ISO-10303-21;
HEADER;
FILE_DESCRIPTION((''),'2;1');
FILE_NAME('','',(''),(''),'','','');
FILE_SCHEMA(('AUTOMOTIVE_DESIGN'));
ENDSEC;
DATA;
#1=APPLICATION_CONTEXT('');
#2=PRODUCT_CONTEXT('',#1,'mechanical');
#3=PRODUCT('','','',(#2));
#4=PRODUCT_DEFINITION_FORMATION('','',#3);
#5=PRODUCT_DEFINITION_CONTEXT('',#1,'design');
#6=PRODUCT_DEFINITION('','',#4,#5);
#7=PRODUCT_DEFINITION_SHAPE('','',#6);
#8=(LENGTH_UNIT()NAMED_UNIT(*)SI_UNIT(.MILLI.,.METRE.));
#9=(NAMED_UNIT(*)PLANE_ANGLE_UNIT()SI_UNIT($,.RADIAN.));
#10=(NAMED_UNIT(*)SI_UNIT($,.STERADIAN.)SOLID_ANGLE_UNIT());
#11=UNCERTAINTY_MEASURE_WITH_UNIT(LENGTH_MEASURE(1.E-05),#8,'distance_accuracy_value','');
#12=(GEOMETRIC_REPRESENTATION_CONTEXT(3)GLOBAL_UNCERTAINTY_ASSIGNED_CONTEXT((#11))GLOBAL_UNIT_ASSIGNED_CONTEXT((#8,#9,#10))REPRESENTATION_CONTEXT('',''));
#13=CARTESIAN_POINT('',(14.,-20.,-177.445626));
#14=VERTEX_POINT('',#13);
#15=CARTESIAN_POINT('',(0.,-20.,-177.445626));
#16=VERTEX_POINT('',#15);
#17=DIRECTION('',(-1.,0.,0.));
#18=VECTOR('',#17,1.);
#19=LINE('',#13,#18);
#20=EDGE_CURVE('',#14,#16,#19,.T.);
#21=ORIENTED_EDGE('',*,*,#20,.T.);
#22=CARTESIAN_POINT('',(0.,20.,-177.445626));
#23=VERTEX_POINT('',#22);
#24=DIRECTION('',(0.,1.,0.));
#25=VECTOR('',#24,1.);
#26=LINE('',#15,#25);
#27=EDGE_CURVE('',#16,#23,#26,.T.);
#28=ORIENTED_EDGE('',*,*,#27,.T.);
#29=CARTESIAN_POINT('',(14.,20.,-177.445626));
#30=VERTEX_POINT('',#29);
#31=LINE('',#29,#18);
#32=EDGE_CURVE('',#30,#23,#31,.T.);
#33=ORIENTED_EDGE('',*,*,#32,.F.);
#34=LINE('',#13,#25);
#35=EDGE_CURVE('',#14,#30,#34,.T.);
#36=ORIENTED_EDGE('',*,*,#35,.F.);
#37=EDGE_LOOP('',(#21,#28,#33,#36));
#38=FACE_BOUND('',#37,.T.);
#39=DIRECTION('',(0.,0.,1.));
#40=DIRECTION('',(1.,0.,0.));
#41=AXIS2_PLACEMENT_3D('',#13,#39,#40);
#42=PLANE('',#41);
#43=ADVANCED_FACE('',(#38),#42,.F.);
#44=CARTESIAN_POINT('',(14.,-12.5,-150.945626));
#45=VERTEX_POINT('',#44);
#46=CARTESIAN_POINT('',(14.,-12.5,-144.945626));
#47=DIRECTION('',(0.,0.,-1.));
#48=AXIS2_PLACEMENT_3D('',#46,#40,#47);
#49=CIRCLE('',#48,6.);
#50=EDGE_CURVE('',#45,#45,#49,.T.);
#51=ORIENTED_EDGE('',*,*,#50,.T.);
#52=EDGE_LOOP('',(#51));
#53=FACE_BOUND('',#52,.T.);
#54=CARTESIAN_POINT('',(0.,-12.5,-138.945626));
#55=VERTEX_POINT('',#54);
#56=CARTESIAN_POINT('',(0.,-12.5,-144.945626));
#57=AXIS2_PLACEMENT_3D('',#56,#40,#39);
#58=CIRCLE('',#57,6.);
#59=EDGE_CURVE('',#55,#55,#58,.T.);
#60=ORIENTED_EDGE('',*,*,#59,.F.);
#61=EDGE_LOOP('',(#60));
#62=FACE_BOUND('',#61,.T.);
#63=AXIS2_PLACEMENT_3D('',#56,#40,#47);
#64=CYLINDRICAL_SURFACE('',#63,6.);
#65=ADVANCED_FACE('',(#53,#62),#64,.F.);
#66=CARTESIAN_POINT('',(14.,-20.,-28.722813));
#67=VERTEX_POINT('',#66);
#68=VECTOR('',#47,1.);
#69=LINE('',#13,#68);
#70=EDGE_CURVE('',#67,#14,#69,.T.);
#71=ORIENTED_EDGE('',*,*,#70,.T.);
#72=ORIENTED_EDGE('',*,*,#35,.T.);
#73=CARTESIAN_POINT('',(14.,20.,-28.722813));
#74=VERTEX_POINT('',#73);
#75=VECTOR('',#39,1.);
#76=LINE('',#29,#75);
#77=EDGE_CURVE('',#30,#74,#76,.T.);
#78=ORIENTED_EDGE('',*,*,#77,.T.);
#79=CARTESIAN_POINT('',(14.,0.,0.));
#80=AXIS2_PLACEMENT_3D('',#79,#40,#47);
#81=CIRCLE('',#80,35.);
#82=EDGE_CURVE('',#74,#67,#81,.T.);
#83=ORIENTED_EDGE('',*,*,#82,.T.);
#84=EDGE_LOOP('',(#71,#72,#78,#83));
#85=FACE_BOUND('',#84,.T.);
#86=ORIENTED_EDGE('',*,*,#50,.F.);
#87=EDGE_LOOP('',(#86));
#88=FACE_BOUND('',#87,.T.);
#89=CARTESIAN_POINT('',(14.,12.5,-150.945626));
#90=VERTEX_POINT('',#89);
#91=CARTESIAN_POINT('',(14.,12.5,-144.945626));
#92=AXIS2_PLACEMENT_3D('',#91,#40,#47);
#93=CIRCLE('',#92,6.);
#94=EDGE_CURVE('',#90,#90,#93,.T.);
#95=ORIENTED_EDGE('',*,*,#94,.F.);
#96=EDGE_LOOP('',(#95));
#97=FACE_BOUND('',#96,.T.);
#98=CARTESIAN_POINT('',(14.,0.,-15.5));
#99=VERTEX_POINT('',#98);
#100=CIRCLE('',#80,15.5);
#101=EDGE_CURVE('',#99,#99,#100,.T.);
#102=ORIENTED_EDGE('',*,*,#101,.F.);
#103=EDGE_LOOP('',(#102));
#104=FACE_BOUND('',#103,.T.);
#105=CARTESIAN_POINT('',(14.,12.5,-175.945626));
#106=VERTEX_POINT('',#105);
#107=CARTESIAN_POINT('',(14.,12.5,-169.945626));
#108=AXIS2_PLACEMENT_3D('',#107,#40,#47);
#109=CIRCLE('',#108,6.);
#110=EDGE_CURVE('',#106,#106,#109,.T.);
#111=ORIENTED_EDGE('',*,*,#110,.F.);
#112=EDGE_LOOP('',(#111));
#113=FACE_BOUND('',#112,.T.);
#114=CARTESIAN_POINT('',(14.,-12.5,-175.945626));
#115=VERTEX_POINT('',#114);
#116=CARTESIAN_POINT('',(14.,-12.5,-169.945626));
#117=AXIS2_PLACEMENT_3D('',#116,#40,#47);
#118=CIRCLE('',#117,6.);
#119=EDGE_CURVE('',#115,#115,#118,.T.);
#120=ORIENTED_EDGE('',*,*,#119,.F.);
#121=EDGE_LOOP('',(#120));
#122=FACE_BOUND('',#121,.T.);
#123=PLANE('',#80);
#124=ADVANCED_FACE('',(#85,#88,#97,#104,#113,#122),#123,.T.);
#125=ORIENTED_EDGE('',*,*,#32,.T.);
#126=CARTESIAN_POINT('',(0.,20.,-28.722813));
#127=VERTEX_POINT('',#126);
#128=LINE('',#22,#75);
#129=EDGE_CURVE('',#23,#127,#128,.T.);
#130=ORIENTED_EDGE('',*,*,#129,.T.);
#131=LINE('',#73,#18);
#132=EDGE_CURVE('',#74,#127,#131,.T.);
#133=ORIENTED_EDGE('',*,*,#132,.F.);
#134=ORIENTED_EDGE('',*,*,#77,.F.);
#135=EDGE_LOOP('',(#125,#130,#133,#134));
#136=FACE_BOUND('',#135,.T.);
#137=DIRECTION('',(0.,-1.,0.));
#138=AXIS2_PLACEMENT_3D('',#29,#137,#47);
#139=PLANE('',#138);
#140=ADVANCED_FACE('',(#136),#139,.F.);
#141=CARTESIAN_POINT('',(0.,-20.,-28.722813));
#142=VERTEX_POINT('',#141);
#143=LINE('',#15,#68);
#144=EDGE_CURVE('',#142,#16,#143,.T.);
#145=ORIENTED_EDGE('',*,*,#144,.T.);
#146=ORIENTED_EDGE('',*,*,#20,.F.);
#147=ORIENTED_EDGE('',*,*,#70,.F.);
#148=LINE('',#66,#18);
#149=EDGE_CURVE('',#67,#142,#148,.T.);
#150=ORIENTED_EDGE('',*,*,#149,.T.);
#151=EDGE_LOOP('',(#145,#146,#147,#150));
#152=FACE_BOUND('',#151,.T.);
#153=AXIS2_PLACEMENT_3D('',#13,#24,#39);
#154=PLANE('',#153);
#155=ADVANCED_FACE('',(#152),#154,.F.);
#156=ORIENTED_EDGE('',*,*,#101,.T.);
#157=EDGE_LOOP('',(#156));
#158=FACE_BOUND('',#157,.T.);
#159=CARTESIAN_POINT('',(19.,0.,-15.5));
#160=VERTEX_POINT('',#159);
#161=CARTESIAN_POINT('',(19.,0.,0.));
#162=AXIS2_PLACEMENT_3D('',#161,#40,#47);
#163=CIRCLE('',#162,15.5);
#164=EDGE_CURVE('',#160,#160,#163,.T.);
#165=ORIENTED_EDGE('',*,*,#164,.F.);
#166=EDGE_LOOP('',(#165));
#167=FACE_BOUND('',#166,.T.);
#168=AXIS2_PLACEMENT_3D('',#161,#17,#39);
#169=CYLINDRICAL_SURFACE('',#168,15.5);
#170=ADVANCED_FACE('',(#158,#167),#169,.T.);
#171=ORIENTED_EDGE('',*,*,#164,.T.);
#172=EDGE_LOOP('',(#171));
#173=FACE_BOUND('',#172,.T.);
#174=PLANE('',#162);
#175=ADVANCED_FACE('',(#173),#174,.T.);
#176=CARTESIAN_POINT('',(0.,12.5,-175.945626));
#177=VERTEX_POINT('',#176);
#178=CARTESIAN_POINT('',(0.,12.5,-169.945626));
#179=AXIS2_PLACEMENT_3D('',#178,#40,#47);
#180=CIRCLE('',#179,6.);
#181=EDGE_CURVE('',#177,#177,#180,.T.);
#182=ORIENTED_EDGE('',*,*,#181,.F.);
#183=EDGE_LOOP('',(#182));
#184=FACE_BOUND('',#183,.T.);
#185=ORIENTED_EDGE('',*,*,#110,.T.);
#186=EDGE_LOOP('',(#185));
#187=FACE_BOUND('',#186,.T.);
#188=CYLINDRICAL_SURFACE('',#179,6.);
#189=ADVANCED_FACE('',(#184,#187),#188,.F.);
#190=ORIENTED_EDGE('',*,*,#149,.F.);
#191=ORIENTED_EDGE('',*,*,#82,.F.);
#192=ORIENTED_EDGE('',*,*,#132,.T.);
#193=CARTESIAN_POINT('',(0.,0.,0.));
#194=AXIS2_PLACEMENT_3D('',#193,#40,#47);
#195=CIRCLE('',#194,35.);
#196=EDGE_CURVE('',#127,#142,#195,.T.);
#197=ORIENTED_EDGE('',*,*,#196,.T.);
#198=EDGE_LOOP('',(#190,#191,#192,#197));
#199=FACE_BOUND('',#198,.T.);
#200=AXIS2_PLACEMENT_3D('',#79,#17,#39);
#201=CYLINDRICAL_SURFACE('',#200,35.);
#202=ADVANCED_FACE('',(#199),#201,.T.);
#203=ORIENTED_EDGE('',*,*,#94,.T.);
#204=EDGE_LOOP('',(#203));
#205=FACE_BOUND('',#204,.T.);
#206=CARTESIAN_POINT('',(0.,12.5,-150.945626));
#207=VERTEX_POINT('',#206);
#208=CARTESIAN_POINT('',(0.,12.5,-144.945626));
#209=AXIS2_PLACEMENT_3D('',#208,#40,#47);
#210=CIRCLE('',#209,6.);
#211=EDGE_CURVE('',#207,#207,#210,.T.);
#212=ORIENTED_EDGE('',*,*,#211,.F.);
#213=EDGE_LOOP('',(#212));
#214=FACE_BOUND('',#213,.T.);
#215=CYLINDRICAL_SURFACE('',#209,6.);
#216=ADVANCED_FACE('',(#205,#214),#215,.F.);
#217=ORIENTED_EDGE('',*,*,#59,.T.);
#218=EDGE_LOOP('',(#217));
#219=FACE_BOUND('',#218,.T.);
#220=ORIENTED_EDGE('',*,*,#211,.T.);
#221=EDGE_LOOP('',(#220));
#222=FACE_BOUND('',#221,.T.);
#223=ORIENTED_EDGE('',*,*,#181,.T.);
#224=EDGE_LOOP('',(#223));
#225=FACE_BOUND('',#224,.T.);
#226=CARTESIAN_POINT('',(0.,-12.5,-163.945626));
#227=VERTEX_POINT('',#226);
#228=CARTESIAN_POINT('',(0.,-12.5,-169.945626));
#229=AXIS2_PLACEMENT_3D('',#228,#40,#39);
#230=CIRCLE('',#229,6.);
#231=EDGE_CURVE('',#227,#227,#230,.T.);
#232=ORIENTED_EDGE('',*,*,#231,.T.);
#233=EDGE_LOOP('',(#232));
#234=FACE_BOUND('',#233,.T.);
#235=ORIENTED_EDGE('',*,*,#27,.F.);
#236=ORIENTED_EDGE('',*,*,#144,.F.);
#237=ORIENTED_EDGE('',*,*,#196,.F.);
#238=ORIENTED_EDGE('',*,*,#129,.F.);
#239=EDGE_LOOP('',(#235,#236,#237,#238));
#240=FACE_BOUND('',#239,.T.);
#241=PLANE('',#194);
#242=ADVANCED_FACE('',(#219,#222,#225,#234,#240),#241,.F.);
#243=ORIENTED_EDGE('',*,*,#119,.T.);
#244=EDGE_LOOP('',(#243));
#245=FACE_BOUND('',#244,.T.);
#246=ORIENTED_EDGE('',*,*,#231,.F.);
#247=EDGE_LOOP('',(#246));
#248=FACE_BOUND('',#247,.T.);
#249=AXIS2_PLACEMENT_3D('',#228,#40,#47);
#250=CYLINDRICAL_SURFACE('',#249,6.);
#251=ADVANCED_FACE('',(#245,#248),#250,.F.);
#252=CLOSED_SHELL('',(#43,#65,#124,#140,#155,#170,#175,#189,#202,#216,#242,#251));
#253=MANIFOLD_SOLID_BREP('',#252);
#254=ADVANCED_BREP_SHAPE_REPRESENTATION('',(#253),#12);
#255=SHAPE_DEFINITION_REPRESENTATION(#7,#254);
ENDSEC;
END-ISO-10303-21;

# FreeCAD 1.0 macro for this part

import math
import FreeCAD as App
import Part
import Sketcher

V = App.Vector
Q = App.Units.Quantity

doc = App.newDocument("Part")
body = doc.addObject("PartDesign::Body", "Body")

sketch1 = body.newObject("Sketcher::SketchObject", "Sketch")
sketch1.AttachmentSupport = (doc.getObject("YZ_Plane"), [""])
sketch1.MapMode = "FlatFace"
sketch1.addGeometry(Part.LineSegment(V(-20, -28.722813, 0), V(-20, -177.445626, 0)), False)
sketch1.addGeometry(Part.LineSegment(V(-20, -177.445626, 0), V(20, -177.445626, 0)), False)
sketch1.addGeometry(Part.LineSegment(V(20, -177.445626, 0), V(20, -28.722813, 0)), False)
sketch1.addGeometry(Part.ArcOfCircle(Part.Circle(V(0, 0, 0), V(0, 0, 1), 35), math.radians(-55.150095), math.radians(235.150095)), False)
sketch1.addConstraint(Sketcher.Constraint("Coincident", 0, 2, 1, 1))
sketch1.addConstraint(Sketcher.Constraint("Coincident", 1, 2, 2, 1))
sketch1.addConstraint(Sketcher.Constraint("Coincident", 2, 2, 3, 1))
sketch1.addConstraint(Sketcher.Constraint("Coincident", 3, 2, 0, 1))
sketch1.addConstraint(Sketcher.Constraint("Vertical", 0))
sketch1.addConstraint(Sketcher.Constraint("Horizontal", 1))
sketch1.addConstraint(Sketcher.Constraint("Vertical", 2))
sketch1.addConstraint(Sketcher.Constraint("Coincident", 3, 3, -1, 1))
sketch1.addConstraint(Sketcher.Constraint("Horizontal", 2, 2, 3, 2))
sketch1.addConstraint(Sketcher.Constraint("Radius", 3, Q("35 mm")))
sketch1.addConstraint(Sketcher.Constraint("DistanceX", 1, 1, 1, 2, Q("40 mm")))
sketch1.addConstraint(Sketcher.Constraint("DistanceY", 0, 2, 0, 1, Q("148.722813 mm")))
pad1 = body.newObject("PartDesign::Pad", "Pad")
pad1.Profile = sketch1
pad1.Length = 14

sketch2 = body.newObject("Sketcher::SketchObject", "Sketch001")
sketch2.AttachmentSupport = (doc.getObject("YZ_Plane"), [""])
sketch2.MapMode = "FlatFace"
sketch2.AttachmentOffset = App.Placement(V(0, 0, 14), App.Rotation())
sketch2.addGeometry(Part.Circle(V(0, 0, 0), V(0, 0, 1), 15.5), False)
sketch2.addConstraint(Sketcher.Constraint("Coincident", 0, 3, -1, 1))
sketch2.addConstraint(Sketcher.Constraint("Diameter", 0, Q("31 mm")))
pad2 = body.newObject("PartDesign::Pad", "Pad001")
pad2.Profile = sketch2
pad2.Length = 5

sketch3 = body.newObject("Sketcher::SketchObject", "Sketch002")
sketch3.AttachmentSupport = (doc.getObject("YZ_Plane"), [""])
sketch3.MapMode = "FlatFace"
sketch3.AttachmentOffset = App.Placement(V(0, 0, 14), App.Rotation())
sketch3.addGeometry(Part.Circle(V(12.5, -169.945626, 0), V(0, 0, 1), 6), False)
sketch3.addGeometry(Part.Circle(V(12.5, -144.945626, 0), V(0, 0, 1), 6), False)
sketch3.addGeometry(Part.Circle(V(-12.5, -144.945626, 0), V(0, 0, 1), 6), False)
sketch3.addGeometry(Part.Circle(V(-12.5, -169.945626, 0), V(0, 0, 1), 6), False)
sketch3.addConstraint(Sketcher.Constraint("Equal", 0, 1))
sketch3.addConstraint(Sketcher.Constraint("Equal", 1, 2))
sketch3.addConstraint(Sketcher.Constraint("Equal", 2, 3))
sketch3.addConstraint(Sketcher.Constraint("Symmetric", 1, 3, 2, 3, -2))
sketch3.addConstraint(Sketcher.Constraint("Symmetric", 0, 3, 3, 3, -2))
sketch3.addConstraint(Sketcher.Constraint("Vertical", 0, 3, 1, 3))
sketch3.addConstraint(Sketcher.Constraint("Diameter", 0, Q("12 mm")))
sketch3.addConstraint(Sketcher.Constraint("DistanceY", 0, 3, 1, 3, Q("25 mm")))
sketch3.addConstraint(Sketcher.Constraint("DistanceX", 2, 3, 1, 3, Q("25 mm")))
sketch3.addConstraint(Sketcher.Constraint("DistanceY", 0, 3, -1, 1, Q("169.945626 mm")))
pocket1 = body.newObject("PartDesign::Pocket", "Pocket")
pocket1.Profile = sketch3
pocket1.Type = "ThroughAll"
pocket1.Midplane = True

doc.recompute()
